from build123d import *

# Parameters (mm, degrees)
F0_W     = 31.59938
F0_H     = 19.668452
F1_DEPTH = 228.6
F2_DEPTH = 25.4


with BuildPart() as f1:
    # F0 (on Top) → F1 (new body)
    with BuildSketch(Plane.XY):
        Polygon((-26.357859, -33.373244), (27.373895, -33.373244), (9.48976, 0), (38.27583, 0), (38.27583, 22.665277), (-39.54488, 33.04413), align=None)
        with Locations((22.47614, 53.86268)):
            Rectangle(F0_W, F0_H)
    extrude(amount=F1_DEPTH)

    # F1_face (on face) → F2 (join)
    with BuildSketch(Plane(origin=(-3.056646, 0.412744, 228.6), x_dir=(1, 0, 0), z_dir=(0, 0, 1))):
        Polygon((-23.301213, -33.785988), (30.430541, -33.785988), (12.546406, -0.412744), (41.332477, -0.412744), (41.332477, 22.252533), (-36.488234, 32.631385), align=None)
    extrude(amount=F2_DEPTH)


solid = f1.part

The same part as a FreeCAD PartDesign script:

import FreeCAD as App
import Part
import Sketcher
from FreeCAD import Vector
Q = App.Units.Quantity

doc = App.newDocument("Part")
params = doc.addObject("Spreadsheet::Sheet", "Params")
for row, (alias, value) in enumerate([
    ("pad1_length", "9 in"),
    ("pad2_length", "1 in"),
], start=1):
    params.set(f"A{row}", alias)
    params.set(f"B{row}", "=" + value)
    params.setAlias(f"B{row}", alias)

body = doc.addObject("PartDesign::Body", "Body")
body.AllowCompound = True

# Sketch on XY plane
sketch1 = body.newObject("Sketcher::SketchObject", "Sketch")
sketch1.AttachmentSupport = (doc.getObject("XY_Plane"), [""])
sketch1.MapMode = "FlatFace"
sketch1.addGeometry([
    Part.LineSegment(Vector(-26, -33, 0), Vector(27, -33, 0)),  # 0
    Part.LineSegment(Vector(27, -33, 0), Vector(9, 0, 0)),  # 1
    Part.LineSegment(Vector(9, 0, 0), Vector(38, 0, 0)),  # 2
    Part.LineSegment(Vector(38, 0, 0), Vector(38, 23, 0)),  # 3
    Part.LineSegment(Vector(38, 23, 0), Vector(-40, 33, 0)),  # 4
    Part.LineSegment(Vector(-40, 33, 0), Vector(-26, -33, 0)),  # 5
    Part.LineSegment(Vector(7, 64, 0), Vector(7, 44, 0)),  # 6
    Part.LineSegment(Vector(7, 44, 0), Vector(38, 44, 0)),  # 7
    Part.LineSegment(Vector(38, 44, 0), Vector(38, 64, 0)),  # 8
    Part.LineSegment(Vector(38, 64, 0), Vector(7, 64, 0)),  # 9
], False)
sketch1.addConstraint([
    Sketcher.Constraint("Coincident", 0, 2, 1, 1),
    Sketcher.Constraint("Coincident", 1, 2, 2, 1),
    Sketcher.Constraint("Coincident", 2, 2, 3, 1),
    Sketcher.Constraint("Coincident", 3, 2, 4, 1),
    Sketcher.Constraint("Coincident", 4, 2, 5, 1),
    Sketcher.Constraint("Coincident", 5, 2, 0, 1),
    Sketcher.Constraint("Coincident", 6, 2, 7, 1),
    Sketcher.Constraint("Coincident", 7, 2, 8, 1),
    Sketcher.Constraint("Coincident", 8, 2, 9, 1),
    Sketcher.Constraint("Coincident", 9, 2, 6, 1),
    Sketcher.Constraint("Horizontal", 0),
    Sketcher.Constraint("Horizontal", 2),
    Sketcher.Constraint("Vertical", 3),
    Sketcher.Constraint("Vertical", 6),
    Sketcher.Constraint("Horizontal", 7),
    Sketcher.Constraint("Vertical", 8),
    Sketcher.Constraint("Horizontal", 9),
    Sketcher.Constraint("PointOnObject", 1, 2, -1),
    Sketcher.Constraint("Vertical", 3, 2, 7, 2),
    Sketcher.Constraint("DistanceX", 1, 2, 0, 2, Q("0.7040998 in")),
    Sketcher.Constraint("DistanceX", 2, 1, 2, 2, 28.78607),
    Sketcher.Constraint("DistanceX", 7, 1, 7, 2, 31.59938),
    Sketcher.Constraint("DistanceY", 6, 2, 6, 1, 19.668452),
    Sketcher.Constraint("DistanceY", 0, 2, 6, 2, 77.401698),
    Sketcher.Constraint("DistanceX", 0, 1, 0, 2, 53.731754),
    Sketcher.Constraint("DistanceY", 3, 1, 3, 2, 22.665277),
    Sketcher.Constraint("DistanceX", -1, 1, 1, 2, 9.48976),
    Sketcher.Constraint("DistanceX", 4, 2, -1, 1, 39.54488),
    Sketcher.Constraint("DistanceY", -1, 1, 4, 2, 33.04413),
    Sketcher.Constraint("DistanceY", 0, 2, 3, 2, 56.038521),
])
pad1 = body.newObject("PartDesign::Pad", "Pad")
pad1.Profile = sketch1
pad1.setExpression("Length", "Params.pad1_length")

# Sketch on XY plane
sketch2 = body.newObject("Sketcher::SketchObject", "Sketch001")
sketch2.AttachmentSupport = (doc.getObject("XY_Plane"), [""])
sketch2.MapMode = "FlatFace"
sketch2.AttachmentOffset = App.Placement(Vector(0, 0, 9 * 25.4), App.Rotation())
sketch2.addGeometry([
    Part.LineSegment(Vector(-26, -33, 0), Vector(27, -33, 0)),  # 0
    Part.LineSegment(Vector(27, -33, 0), Vector(9, 0, 0)),  # 1
    Part.LineSegment(Vector(9, 0, 0), Vector(38, 0, 0)),  # 2
    Part.LineSegment(Vector(38, 0, 0), Vector(38, 23, 0)),  # 3
    Part.LineSegment(Vector(38, 23, 0), Vector(-40, 33, 0)),  # 4
    Part.LineSegment(Vector(-40, 33, 0), Vector(-26, -33, 0)),  # 5
], False)
sketch2.addConstraint([
    Sketcher.Constraint("Coincident", 0, 2, 1, 1),
    Sketcher.Constraint("Coincident", 1, 2, 2, 1),
    Sketcher.Constraint("Coincident", 2, 2, 3, 1),
    Sketcher.Constraint("Coincident", 3, 2, 4, 1),
    Sketcher.Constraint("Coincident", 4, 2, 5, 1),
    Sketcher.Constraint("Coincident", 5, 2, 0, 1),
    Sketcher.Constraint("Horizontal", 0),
    Sketcher.Constraint("Horizontal", 2),
    Sketcher.Constraint("Vertical", 3),
    Sketcher.Constraint("PointOnObject", 1, 2, -1),
    Sketcher.Constraint("DistanceX", 1, 2, 0, 2, Q("0.7040998 in")),
    Sketcher.Constraint("DistanceX", 2, 1, 2, 2, 28.786071),
    Sketcher.Constraint("DistanceX", 0, 1, 0, 2, 53.731754),
    Sketcher.Constraint("DistanceY", 3, 1, 3, 2, 22.665277),
    Sketcher.Constraint("DistanceX", -1, 1, 1, 2, 9.48976),
    Sketcher.Constraint("DistanceX", 4, 2, -1, 1, 39.54488),
    Sketcher.Constraint("DistanceY", -1, 1, 4, 2, 33.044129),
    Sketcher.Constraint("DistanceY", 0, 2, 3, 2, 56.038521),
])
pad2 = body.newObject("PartDesign::Pad", "Pad001")
pad2.Profile = sketch2
pad2.setExpression("Length", "Params.pad2_length")

doc.recompute()
